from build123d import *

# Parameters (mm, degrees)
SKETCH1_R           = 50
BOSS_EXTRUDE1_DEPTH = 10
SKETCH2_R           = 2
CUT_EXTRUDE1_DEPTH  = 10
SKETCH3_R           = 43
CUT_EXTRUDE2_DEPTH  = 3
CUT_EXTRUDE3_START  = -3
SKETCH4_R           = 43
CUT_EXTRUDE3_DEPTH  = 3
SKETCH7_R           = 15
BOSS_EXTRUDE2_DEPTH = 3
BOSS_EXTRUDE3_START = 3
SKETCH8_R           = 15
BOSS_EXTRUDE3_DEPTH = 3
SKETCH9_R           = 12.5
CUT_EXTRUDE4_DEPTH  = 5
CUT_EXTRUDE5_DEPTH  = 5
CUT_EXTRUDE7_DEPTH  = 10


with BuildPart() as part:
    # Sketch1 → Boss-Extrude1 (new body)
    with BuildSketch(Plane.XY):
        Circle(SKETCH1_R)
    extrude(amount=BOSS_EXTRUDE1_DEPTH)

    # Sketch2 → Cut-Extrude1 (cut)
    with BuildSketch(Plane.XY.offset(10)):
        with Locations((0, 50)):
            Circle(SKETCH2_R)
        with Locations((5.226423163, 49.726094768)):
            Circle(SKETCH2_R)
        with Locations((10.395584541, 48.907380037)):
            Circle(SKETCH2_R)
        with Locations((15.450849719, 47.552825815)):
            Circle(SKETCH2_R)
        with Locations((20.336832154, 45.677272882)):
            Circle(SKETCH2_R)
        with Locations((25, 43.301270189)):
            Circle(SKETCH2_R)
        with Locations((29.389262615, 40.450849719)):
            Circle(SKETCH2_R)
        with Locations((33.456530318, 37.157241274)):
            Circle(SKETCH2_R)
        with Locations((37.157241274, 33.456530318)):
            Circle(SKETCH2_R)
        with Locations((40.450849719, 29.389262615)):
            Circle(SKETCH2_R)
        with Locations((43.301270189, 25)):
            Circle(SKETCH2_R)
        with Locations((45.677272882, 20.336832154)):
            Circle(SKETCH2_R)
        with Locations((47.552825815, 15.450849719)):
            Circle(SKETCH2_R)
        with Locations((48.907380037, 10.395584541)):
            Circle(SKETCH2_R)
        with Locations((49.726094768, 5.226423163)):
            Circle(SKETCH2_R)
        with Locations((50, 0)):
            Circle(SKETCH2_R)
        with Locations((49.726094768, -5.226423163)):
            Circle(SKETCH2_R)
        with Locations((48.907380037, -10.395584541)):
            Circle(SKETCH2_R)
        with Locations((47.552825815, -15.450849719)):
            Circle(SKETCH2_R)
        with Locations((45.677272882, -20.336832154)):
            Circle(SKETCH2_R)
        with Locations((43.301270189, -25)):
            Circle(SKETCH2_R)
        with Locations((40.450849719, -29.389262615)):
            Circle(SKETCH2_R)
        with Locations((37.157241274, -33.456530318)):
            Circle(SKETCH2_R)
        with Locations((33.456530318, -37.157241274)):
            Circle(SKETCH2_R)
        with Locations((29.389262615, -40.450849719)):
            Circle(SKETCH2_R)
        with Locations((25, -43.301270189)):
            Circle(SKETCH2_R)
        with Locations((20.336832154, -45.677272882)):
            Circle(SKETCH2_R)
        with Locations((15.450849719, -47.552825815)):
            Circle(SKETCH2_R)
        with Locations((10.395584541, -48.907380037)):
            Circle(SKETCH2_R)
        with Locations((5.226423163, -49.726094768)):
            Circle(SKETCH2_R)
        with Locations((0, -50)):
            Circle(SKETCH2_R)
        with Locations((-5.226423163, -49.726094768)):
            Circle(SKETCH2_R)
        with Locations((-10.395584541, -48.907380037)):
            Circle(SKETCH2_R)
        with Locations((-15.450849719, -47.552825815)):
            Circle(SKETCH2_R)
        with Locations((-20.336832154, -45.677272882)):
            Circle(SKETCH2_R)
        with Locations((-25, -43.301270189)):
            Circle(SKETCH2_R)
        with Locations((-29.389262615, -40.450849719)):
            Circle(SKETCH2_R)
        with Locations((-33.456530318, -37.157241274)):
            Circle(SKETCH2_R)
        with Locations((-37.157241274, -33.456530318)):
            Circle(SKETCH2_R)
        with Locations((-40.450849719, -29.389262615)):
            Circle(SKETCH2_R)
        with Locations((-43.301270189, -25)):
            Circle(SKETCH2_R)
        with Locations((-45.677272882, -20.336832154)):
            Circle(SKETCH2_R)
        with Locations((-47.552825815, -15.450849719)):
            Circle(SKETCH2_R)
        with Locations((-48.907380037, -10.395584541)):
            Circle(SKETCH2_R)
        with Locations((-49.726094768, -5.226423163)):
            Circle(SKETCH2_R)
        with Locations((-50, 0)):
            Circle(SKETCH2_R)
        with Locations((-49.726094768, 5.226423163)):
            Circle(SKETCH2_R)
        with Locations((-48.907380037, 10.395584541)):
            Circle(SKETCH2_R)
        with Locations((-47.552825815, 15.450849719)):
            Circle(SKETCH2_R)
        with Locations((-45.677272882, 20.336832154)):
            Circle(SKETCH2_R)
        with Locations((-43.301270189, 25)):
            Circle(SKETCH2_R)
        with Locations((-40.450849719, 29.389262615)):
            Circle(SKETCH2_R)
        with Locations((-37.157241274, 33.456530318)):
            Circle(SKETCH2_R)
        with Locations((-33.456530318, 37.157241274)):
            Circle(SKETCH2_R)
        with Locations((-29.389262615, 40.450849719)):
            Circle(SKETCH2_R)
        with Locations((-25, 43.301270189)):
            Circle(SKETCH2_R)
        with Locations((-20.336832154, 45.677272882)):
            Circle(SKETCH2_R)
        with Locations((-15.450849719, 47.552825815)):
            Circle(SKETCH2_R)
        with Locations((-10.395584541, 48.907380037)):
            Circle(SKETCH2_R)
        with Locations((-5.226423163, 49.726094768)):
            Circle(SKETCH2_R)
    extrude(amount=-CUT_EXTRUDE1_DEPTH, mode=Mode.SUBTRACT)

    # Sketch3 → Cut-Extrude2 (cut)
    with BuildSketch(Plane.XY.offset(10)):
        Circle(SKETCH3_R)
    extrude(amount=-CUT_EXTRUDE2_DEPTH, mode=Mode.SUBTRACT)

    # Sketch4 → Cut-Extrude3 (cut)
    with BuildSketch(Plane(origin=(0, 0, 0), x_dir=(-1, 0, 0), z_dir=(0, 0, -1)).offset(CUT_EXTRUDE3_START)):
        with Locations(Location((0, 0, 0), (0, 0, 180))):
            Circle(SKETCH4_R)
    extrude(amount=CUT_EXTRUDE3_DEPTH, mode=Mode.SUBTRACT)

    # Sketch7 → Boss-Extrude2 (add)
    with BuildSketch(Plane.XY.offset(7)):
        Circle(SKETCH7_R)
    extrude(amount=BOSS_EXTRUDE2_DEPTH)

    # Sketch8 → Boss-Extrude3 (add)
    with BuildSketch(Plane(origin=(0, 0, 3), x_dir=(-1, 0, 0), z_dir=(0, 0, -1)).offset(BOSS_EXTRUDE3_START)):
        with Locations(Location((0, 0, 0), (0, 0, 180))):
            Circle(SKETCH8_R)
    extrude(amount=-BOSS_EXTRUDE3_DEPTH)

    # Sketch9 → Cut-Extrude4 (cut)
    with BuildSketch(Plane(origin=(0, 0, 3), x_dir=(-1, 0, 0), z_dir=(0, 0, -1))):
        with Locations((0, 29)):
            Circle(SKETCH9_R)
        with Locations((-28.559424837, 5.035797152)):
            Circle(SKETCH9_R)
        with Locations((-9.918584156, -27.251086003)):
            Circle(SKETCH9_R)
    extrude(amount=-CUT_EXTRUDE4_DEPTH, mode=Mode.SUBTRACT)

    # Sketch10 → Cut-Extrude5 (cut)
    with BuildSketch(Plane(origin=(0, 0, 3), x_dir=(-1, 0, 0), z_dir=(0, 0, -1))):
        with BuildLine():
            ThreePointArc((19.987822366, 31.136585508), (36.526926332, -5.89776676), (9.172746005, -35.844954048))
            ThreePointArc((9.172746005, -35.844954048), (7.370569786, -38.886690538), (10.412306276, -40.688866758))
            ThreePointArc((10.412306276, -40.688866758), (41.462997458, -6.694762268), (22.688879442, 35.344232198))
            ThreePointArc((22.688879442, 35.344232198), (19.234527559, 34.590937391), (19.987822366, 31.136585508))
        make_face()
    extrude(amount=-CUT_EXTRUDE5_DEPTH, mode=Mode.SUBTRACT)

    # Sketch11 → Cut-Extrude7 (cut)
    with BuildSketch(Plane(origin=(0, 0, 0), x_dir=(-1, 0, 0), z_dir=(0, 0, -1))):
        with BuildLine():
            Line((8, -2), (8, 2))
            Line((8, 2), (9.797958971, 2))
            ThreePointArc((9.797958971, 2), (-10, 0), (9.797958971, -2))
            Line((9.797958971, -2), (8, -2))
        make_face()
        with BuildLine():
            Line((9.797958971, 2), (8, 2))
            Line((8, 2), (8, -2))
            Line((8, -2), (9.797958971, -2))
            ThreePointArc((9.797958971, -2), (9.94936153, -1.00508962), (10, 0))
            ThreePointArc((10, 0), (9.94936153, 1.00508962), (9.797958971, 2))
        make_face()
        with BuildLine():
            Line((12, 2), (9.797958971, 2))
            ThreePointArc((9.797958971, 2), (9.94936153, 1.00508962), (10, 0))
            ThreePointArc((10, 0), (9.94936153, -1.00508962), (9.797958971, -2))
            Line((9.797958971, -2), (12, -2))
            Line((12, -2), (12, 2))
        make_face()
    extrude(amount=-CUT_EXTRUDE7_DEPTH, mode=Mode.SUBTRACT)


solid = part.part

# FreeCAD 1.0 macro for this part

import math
import FreeCAD as App
import Part
import Sketcher
from FreeCAD import Vector
Q = App.Units.Quantity

doc = App.newDocument("Part")
params = doc.addObject("Spreadsheet::Sheet", "Params")
for row, (alias, value) in enumerate([
    ("sketch1_diameter", "100 mm"),
    ("pad1_length", "10 mm"),
    ("sketch2_diameter", "4 mm"),
    ("pocket1_length", "10 mm"),
    ("sketch3_diameter", "86 mm"),
    ("pocket2_length", "3 mm"),
    ("sketch4_diameter", "86 mm"),
    ("pocket3_length", "3 mm"),
    ("sketch5_diameter", "30 mm"),
    ("pad2_length", "3 mm"),
    ("sketch6_diameter", "30 mm"),
    ("pad3_length", "3 mm"),
    ("sketch7_diameter", "25 mm"),
    ("pocket4_length", "5 mm"),
    ("sketch8_radius", "37 mm"),
    ("sketch8_radius2", "42 mm"),
    ("pocket5_length", "5 mm"),
    ("sketch9_radius", "10 mm"),
    ("sketch9_height", "4 mm"),
    ("pocket6_length", "10 mm"),
], start=1):
    params.set(f"A{row}", alias)
    params.set(f"B{row}", "=" + value)
    params.setAlias(f"B{row}", alias)

body = doc.addObject("PartDesign::Body", "Body")

# Sketch on XY plane
sketch1 = body.newObject("Sketcher::SketchObject", "Sketch")
sketch1.AttachmentSupport = (doc.getObject("XY_Plane"), [""])
sketch1.MapMode = "FlatFace"
sketch1.addGeometry(Part.Circle(Vector(0, 0, 0), Vector(0, 0, 1), 50), False)
sketch1.addConstraint(Sketcher.Constraint("Coincident", 0, 3, -1, 1))
sketch1.addConstraint(Sketcher.Constraint("Diameter", 0, Q("100 mm")))
sketch1.setExpression("Constraints[1]", "Params.sketch1_diameter")
pad1 = body.newObject("PartDesign::Pad", "Pad")
pad1.Profile = sketch1
pad1.setExpression("Length", "Params.pad1_length")

# Sketch on XY plane
sketch2 = body.newObject("Sketcher::SketchObject", "Sketch001")
sketch2.AttachmentSupport = (doc.getObject("XY_Plane"), [""])
sketch2.MapMode = "FlatFace"
sketch2.AttachmentOffset = App.Placement(Vector(0, 0, 10), App.Rotation())
sketch2.addGeometry(Part.Circle(Vector(0, 50, 0), Vector(0, 0, 1), 2), False)
sketch2.addGeometry(Part.Circle(Vector(5.226423, 49.726095, 0), Vector(0, 0, 1), 2), False)
sketch2.addGeometry(Part.Circle(Vector(10.395585, 48.90738, 0), Vector(0, 0, 1), 2), False)
sketch2.addGeometry(Part.Circle(Vector(15.45085, 47.552826, 0), Vector(0, 0, 1), 2), False)
sketch2.addGeometry(Part.Circle(Vector(20.336832, 45.677273, 0), Vector(0, 0, 1), 2), False)
sketch2.addGeometry(Part.Circle(Vector(25, 43.30127, 0), Vector(0, 0, 1), 2), False)
sketch2.addGeometry(Part.Circle(Vector(29.389263, 40.45085, 0), Vector(0, 0, 1), 2), False)
sketch2.addGeometry(Part.Circle(Vector(33.45653, 37.157241, 0), Vector(0, 0, 1), 2), False)
sketch2.addGeometry(Part.Circle(Vector(37.157241, 33.45653, 0), Vector(0, 0, 1), 2), False)
sketch2.addGeometry(Part.Circle(Vector(40.45085, 29.389263, 0), Vector(0, 0, 1), 2), False)
sketch2.addGeometry(Part.Circle(Vector(43.30127, 25, 0), Vector(0, 0, 1), 2), False)
sketch2.addGeometry(Part.Circle(Vector(45.677273, 20.336832, 0), Vector(0, 0, 1), 2), False)
sketch2.addGeometry(Part.Circle(Vector(47.552826, 15.45085, 0), Vector(0, 0, 1), 2), False)
sketch2.addGeometry(Part.Circle(Vector(48.90738, 10.395585, 0), Vector(0, 0, 1), 2), False)
sketch2.addGeometry(Part.Circle(Vector(49.726095, 5.226423, 0), Vector(0, 0, 1), 2), False)
sketch2.addGeometry(Part.Circle(Vector(50, 0, 0), Vector(0, 0, 1), 2), False)
sketch2.addGeometry(Part.Circle(Vector(49.726095, -5.226423, 0), Vector(0, 0, 1), 2), False)
sketch2.addGeometry(Part.Circle(Vector(48.90738, -10.395585, 0), Vector(0, 0, 1), 2), False)
sketch2.addGeometry(Part.Circle(Vector(47.552826, -15.45085, 0), Vector(0, 0, 1), 2), False)
sketch2.addGeometry(Part.Circle(Vector(45.677273, -20.336832, 0), Vector(0, 0, 1), 2), False)
sketch2.addGeometry(Part.Circle(Vector(43.30127, -25, 0), Vector(0, 0, 1), 2), False)
sketch2.addGeometry(Part.Circle(Vector(40.45085, -29.389263, 0), Vector(0, 0, 1), 2), False)
sketch2.addGeometry(Part.Circle(Vector(37.157241, -33.45653, 0), Vector(0, 0, 1), 2), False)
sketch2.addGeometry(Part.Circle(Vector(33.45653, -37.157241, 0), Vector(0, 0, 1), 2), False)
sketch2.addGeometry(Part.Circle(Vector(29.389263, -40.45085, 0), Vector(0, 0, 1), 2), False)
sketch2.addGeometry(Part.Circle(Vector(25, -43.30127, 0), Vector(0, 0, 1), 2), False)
sketch2.addGeometry(Part.Circle(Vector(20.336832, -45.677273, 0), Vector(0, 0, 1), 2), False)
sketch2.addGeometry(Part.Circle(Vector(15.45085, -47.552826, 0), Vector(0, 0, 1), 2), False)
sketch2.addGeometry(Part.Circle(Vector(10.395585, -48.90738, 0), Vector(0, 0, 1), 2), False)
sketch2.addGeometry(Part.Circle(Vector(5.226423, -49.726095, 0), Vector(0, 0, 1), 2), False)
sketch2.addGeometry(Part.Circle(Vector(0, -50, 0), Vector(0, 0, 1), 2), False)
sketch2.addGeometry(Part.Circle(Vector(-5.226423, -49.726095, 0), Vector(0, 0, 1), 2), False)
sketch2.addGeometry(Part.Circle(Vector(-10.395585, -48.90738, 0), Vector(0, 0, 1), 2), False)
sketch2.addGeometry(Part.Circle(Vector(-15.45085, -47.552826, 0), Vector(0, 0, 1), 2), False)
sketch2.addGeometry(Part.Circle(Vector(-20.336832, -45.677273, 0), Vector(0, 0, 1), 2), False)
sketch2.addGeometry(Part.Circle(Vector(-25, -43.30127, 0), Vector(0, 0, 1), 2), False)
sketch2.addGeometry(Part.Circle(Vector(-29.389263, -40.45085, 0), Vector(0, 0, 1), 2), False)
sketch2.addGeometry(Part.Circle(Vector(-33.45653, -37.157241, 0), Vector(0, 0, 1), 2), False)
sketch2.addGeometry(Part.Circle(Vector(-37.157241, -33.45653, 0), Vector(0, 0, 1), 2), False)
sketch2.addGeometry(Part.Circle(Vector(-40.45085, -29.389263, 0), Vector(0, 0, 1), 2), False)
sketch2.addGeometry(Part.Circle(Vector(-43.30127, -25, 0), Vector(0, 0, 1), 2), False)
sketch2.addGeometry(Part.Circle(Vector(-45.677273, -20.336832, 0), Vector(0, 0, 1), 2), False)
sketch2.addGeometry(Part.Circle(Vector(-47.552826, -15.45085, 0), Vector(0, 0, 1), 2), False)
sketch2.addGeometry(Part.Circle(Vector(-48.90738, -10.395585, 0), Vector(0, 0, 1), 2), False)
sketch2.addGeometry(Part.Circle(Vector(-49.726095, -5.226423, 0), Vector(0, 0, 1), 2), False)
sketch2.addGeometry(Part.Circle(Vector(-50, 0, 0), Vector(0, 0, 1), 2), False)
sketch2.addGeometry(Part.Circle(Vector(-49.726095, 5.226423, 0), Vector(0, 0, 1), 2), False)
sketch2.addGeometry(Part.Circle(Vector(-48.90738, 10.395585, 0), Vector(0, 0, 1), 2), False)
sketch2.addGeometry(Part.Circle(Vector(-47.552826, 15.45085, 0), Vector(0, 0, 1), 2), False)
sketch2.addGeometry(Part.Circle(Vector(-45.677273, 20.336832, 0), Vector(0, 0, 1), 2), False)
sketch2.addGeometry(Part.Circle(Vector(-43.30127, 25, 0), Vector(0, 0, 1), 2), False)
sketch2.addGeometry(Part.Circle(Vector(-40.45085, 29.389263, 0), Vector(0, 0, 1), 2), False)
sketch2.addGeometry(Part.Circle(Vector(-37.157241, 33.45653, 0), Vector(0, 0, 1), 2), False)
sketch2.addGeometry(Part.Circle(Vector(-33.45653, 37.157241, 0), Vector(0, 0, 1), 2), False)
sketch2.addGeometry(Part.Circle(Vector(-29.389263, 40.45085, 0), Vector(0, 0, 1), 2), False)
sketch2.addGeometry(Part.Circle(Vector(-25, 43.30127, 0), Vector(0, 0, 1), 2), False)
sketch2.addGeometry(Part.Circle(Vector(-20.336832, 45.677273, 0), Vector(0, 0, 1), 2), False)
sketch2.addGeometry(Part.Circle(Vector(-15.45085, 47.552826, 0), Vector(0, 0, 1), 2), False)
sketch2.addGeometry(Part.Circle(Vector(-10.395585, 48.90738, 0), Vector(0, 0, 1), 2), False)
sketch2.addGeometry(Part.Circle(Vector(-5.226423, 49.726095, 0), Vector(0, 0, 1), 2), False)
sketch2.addConstraint(Sketcher.Constraint("Equal", 0, 1))
sketch2.addConstraint(Sketcher.Constraint("Equal", 1, 2))
sketch2.addConstraint(Sketcher.Constraint("Equal", 2, 3))
sketch2.addConstraint(Sketcher.Constraint("Equal", 3, 4))
sketch2.addConstraint(Sketcher.Constraint("Equal", 4, 5))
sketch2.addConstraint(Sketcher.Constraint("Equal", 5, 6))
sketch2.addConstraint(Sketcher.Constraint("Equal", 6, 7))
sketch2.addConstraint(Sketcher.Constraint("Equal", 7, 8))
sketch2.addConstraint(Sketcher.Constraint("Equal", 8, 9))
sketch2.addConstraint(Sketcher.Constraint("Equal", 9, 10))
sketch2.addConstraint(Sketcher.Constraint("Equal", 10, 11))
sketch2.addConstraint(Sketcher.Constraint("Equal", 11, 12))
sketch2.addConstraint(Sketcher.Constraint("Equal", 12, 13))
sketch2.addConstraint(Sketcher.Constraint("Equal", 13, 14))
sketch2.addConstraint(Sketcher.Constraint("Equal", 14, 15))
sketch2.addConstraint(Sketcher.Constraint("Equal", 15, 16))
sketch2.addConstraint(Sketcher.Constraint("Equal", 16, 17))
sketch2.addConstraint(Sketcher.Constraint("Equal", 17, 18))
sketch2.addConstraint(Sketcher.Constraint("Equal", 18, 19))
sketch2.addConstraint(Sketcher.Constraint("Equal", 19, 20))
sketch2.addConstraint(Sketcher.Constraint("Equal", 20, 21))
sketch2.addConstraint(Sketcher.Constraint("Equal", 21, 22))
sketch2.addConstraint(Sketcher.Constraint("Equal", 22, 23))
sketch2.addConstraint(Sketcher.Constraint("Equal", 23, 24))
sketch2.addConstraint(Sketcher.Constraint("Equal", 24, 25))
sketch2.addConstraint(Sketcher.Constraint("Equal", 25, 26))
sketch2.addConstraint(Sketcher.Constraint("Equal", 26, 27))
sketch2.addConstraint(Sketcher.Constraint("Equal", 27, 28))
sketch2.addConstraint(Sketcher.Constraint("Equal", 28, 29))
sketch2.addConstraint(Sketcher.Constraint("Equal", 29, 30))
sketch2.addConstraint(Sketcher.Constraint("Equal", 30, 31))
sketch2.addConstraint(Sketcher.Constraint("Equal", 31, 32))
sketch2.addConstraint(Sketcher.Constraint("Equal", 32, 33))
sketch2.addConstraint(Sketcher.Constraint("Equal", 33, 34))
sketch2.addConstraint(Sketcher.Constraint("Equal", 34, 35))
sketch2.addConstraint(Sketcher.Constraint("Equal", 35, 36))
sketch2.addConstraint(Sketcher.Constraint("Equal", 36, 37))
sketch2.addConstraint(Sketcher.Constraint("Equal", 37, 38))
sketch2.addConstraint(Sketcher.Constraint("Equal", 38, 39))
sketch2.addConstraint(Sketcher.Constraint("Equal", 39, 40))
sketch2.addConstraint(Sketcher.Constraint("Equal", 40, 41))
sketch2.addConstraint(Sketcher.Constraint("Equal", 41, 42))
sketch2.addConstraint(Sketcher.Constraint("Equal", 42, 43))
sketch2.addConstraint(Sketcher.Constraint("Equal", 43, 44))
sketch2.addConstraint(Sketcher.Constraint("Equal", 44, 45))
sketch2.addConstraint(Sketcher.Constraint("Equal", 45, 46))
sketch2.addConstraint(Sketcher.Constraint("Equal", 46, 47))
sketch2.addConstraint(Sketcher.Constraint("Equal", 47, 48))
sketch2.addConstraint(Sketcher.Constraint("Equal", 48, 49))
sketch2.addConstraint(Sketcher.Constraint("Equal", 49, 50))
sketch2.addConstraint(Sketcher.Constraint("Equal", 50, 51))
sketch2.addConstraint(Sketcher.Constraint("Equal", 51, 52))
sketch2.addConstraint(Sketcher.Constraint("Equal", 52, 53))
sketch2.addConstraint(Sketcher.Constraint("Equal", 53, 54))
sketch2.addConstraint(Sketcher.Constraint("Equal", 54, 55))
sketch2.addConstraint(Sketcher.Constraint("Equal", 55, 56))
sketch2.addConstraint(Sketcher.Constraint("Equal", 56, 57))
sketch2.addConstraint(Sketcher.Constraint("Equal", 57, 58))
sketch2.addConstraint(Sketcher.Constraint("Equal", 58, 59))
sketch2.addConstraint(Sketcher.Constraint("Symmetric", 0, 3, 30, 3, -1, 1))
sketch2.addConstraint(Sketcher.Constraint("Symmetric", 1, 3, 31, 3, -1, 1))
sketch2.addConstraint(Sketcher.Constraint("Symmetric", 2, 3, 32, 3, -1, 1))
sketch2.addConstraint(Sketcher.Constraint("Symmetric", 3, 3, 33, 3, -1, 1))
sketch2.addConstraint(Sketcher.Constraint("Symmetric", 4, 3, 34, 3, -1, 1))
sketch2.addConstraint(Sketcher.Constraint("Symmetric", 5, 3, 35, 3, -1, 1))
sketch2.addConstraint(Sketcher.Constraint("Symmetric", 6, 3, 36, 3, -1, 1))
sketch2.addConstraint(Sketcher.Constraint("Symmetric", 7, 3, 37, 3, -1, 1))
sketch2.addConstraint(Sketcher.Constraint("Symmetric", 8, 3, 38, 3, -1, 1))
sketch2.addConstraint(Sketcher.Constraint("Symmetric", 9, 3, 39, 3, -1, 1))
sketch2.addConstraint(Sketcher.Constraint("Symmetric", 10, 3, 40, 3, -1, 1))
sketch2.addConstraint(Sketcher.Constraint("Symmetric", 11, 3, 41, 3, -1, 1))
sketch2.addConstraint(Sketcher.Constraint("Symmetric", 12, 3, 42, 3, -1, 1))
sketch2.addConstraint(Sketcher.Constraint("Symmetric", 13, 3, 43, 3, -1, 1))
sketch2.addConstraint(Sketcher.Constraint("Symmetric", 14, 3, 44, 3, -1, 1))
sketch2.addConstraint(Sketcher.Constraint("Symmetric", 15, 3, 45, 3, -1, 1))
sketch2.addConstraint(Sketcher.Constraint("Symmetric", 16, 3, 46, 3, -1, 1))
sketch2.addConstraint(Sketcher.Constraint("Symmetric", 17, 3, 47, 3, -1, 1))
sketch2.addConstraint(Sketcher.Constraint("Symmetric", 18, 3, 48, 3, -1, 1))
sketch2.addConstraint(Sketcher.Constraint("Symmetric", 19, 3, 49, 3, -1, 1))
sketch2.addConstraint(Sketcher.Constraint("Symmetric", 20, 3, 50, 3, -1, 1))
sketch2.addConstraint(Sketcher.Constraint("Symmetric", 21, 3, 51, 3, -1, 1))
sketch2.addConstraint(Sketcher.Constraint("Symmetric", 22, 3, 52, 3, -1, 1))
sketch2.addConstraint(Sketcher.Constraint("Symmetric", 23, 3, 53, 3, -1, 1))
sketch2.addConstraint(Sketcher.Constraint("Symmetric", 24, 3, 54, 3, -1, 1))
sketch2.addConstraint(Sketcher.Constraint("Symmetric", 25, 3, 55, 3, -1, 1))
sketch2.addConstraint(Sketcher.Constraint("Symmetric", 26, 3, 56, 3, -1, 1))
sketch2.addConstraint(Sketcher.Constraint("Symmetric", 27, 3, 57, 3, -1, 1))
sketch2.addConstraint(Sketcher.Constraint("Symmetric", 28, 3, 58, 3, -1, 1))
sketch2.addConstraint(Sketcher.Constraint("Symmetric", 29, 3, 59, 3, -1, 1))
sketch2.addConstraint(Sketcher.Constraint("Symmetric", 29, 3, 31, 3, -2))
sketch2.addConstraint(Sketcher.Constraint("Symmetric", 28, 3, 32, 3, -2))
sketch2.addConstraint(Sketcher.Constraint("Symmetric", 27, 3, 33, 3, -2))
sketch2.addConstraint(Sketcher.Constraint("Symmetric", 26, 3, 34, 3, -2))
sketch2.addConstraint(Sketcher.Constraint("Symmetric", 25, 3, 35, 3, -2))
sketch2.addConstraint(Sketcher.Constraint("Symmetric", 24, 3, 36, 3, -2))
sketch2.addConstraint(Sketcher.Constraint("Symmetric", 23, 3, 37, 3, -2))
sketch2.addConstraint(Sketcher.Constraint("Symmetric", 22, 3, 38, 3, -2))
sketch2.addConstraint(Sketcher.Constraint("Symmetric", 21, 3, 39, 3, -2))
sketch2.addConstraint(Sketcher.Constraint("Symmetric", 20, 3, 40, 3, -2))
sketch2.addConstraint(Sketcher.Constraint("Symmetric", 19, 3, 41, 3, -2))
sketch2.addConstraint(Sketcher.Constraint("Symmetric", 18, 3, 42, 3, -2))
sketch2.addConstraint(Sketcher.Constraint("Symmetric", 17, 3, 43, 3, -2))
sketch2.addConstraint(Sketcher.Constraint("Symmetric", 16, 3, 44, 3, -2))
sketch2.addConstraint(Sketcher.Constraint("PointOnObject", 0, 3, -2))
sketch2.addConstraint(Sketcher.Constraint("PointOnObject", 15, 3, -1))
sketch2.addConstraint(Sketcher.Constraint("Diameter", 0, Q("4 mm")))
sketch2.addConstraint(Sketcher.Constraint("DistanceY", -1, 1, 0, 3, Q("50 mm")))
sketch2.addConstraint(Sketcher.Constraint("DistanceX", -1, 1, 5, 3, Q("25 mm")))
sketch2.addConstraint(Sketcher.Constraint("DistanceY", -1, 1, 10, 3, Q("25 mm")))
sketch2.addConstraint(Sketcher.Constraint("DistanceX", -1, 1, 15, 3, Q("50 mm")))
sketch2.addConstraint(Sketcher.Constraint("DistanceX", 4, 3, 7, 3, Q("13.119698 mm")))
sketch2.addConstraint(Sketcher.Constraint("DistanceY", 11, 3, 8, 3, Q("13.119698 mm")))
sketch2.addConstraint(Sketcher.Constraint("DistanceY", -1, 1, 2, 3, Q("48.90738 mm")))
sketch2.addConstraint(Sketcher.Constraint("DistanceX", -1, 1, 3, 3, Q("15.45085 mm")))
sketch2.addConstraint(Sketcher.Constraint("DistanceY", -1, 1, 5, 3, Q("43.30127 mm")))
sketch2.addConstraint(Sketcher.Constraint("DistanceY", -1, 1, 6, 3, Q("40.45085 mm")))
sketch2.addConstraint(Sketcher.Constraint("DistanceX", -1, 1, 7, 3, Q("33.45653 mm")))
sketch2.addConstraint(Sketcher.Constraint("DistanceY", -1, 1, 7, 3, Q("37.157241 mm")))
sketch2.addConstraint(Sketcher.Constraint("DistanceX", -1, 1, 8, 3, Q("37.157241 mm")))
sketch2.addConstraint(Sketcher.Constraint("DistanceY", -1, 1, 8, 3, Q("33.45653 mm")))
sketch2.addConstraint(Sketcher.Constraint("DistanceX", -1, 1, 9, 3, Q("40.45085 mm")))
sketch2.addConstraint(Sketcher.Constraint("DistanceX", -1, 1, 10, 3, Q("43.30127 mm")))
sketch2.addConstraint(Sketcher.Constraint("DistanceY", -1, 1, 12, 3, Q("15.45085 mm")))
sketch2.addConstraint(Sketcher.Constraint("DistanceX", -1, 1, 13, 3, Q("48.90738 mm")))
sketch2.addConstraint(Sketcher.Constraint("DistanceX", 1, 3, 2, 3, Q("5.169161 mm")))
sketch2.addConstraint(Sketcher.Constraint("DistanceY", 3, 3, 1, 3, Q("2.173269 mm")))
sketch2.addConstraint(Sketcher.Constraint("DistanceX", 1, 3, 4, 3, Q("15.110409 mm")))
sketch2.addConstraint(Sketcher.Constraint("DistanceY", 4, 3, 1, 3, Q("4.048822 mm")))
sketch2.addConstraint(Sketcher.Constraint("DistanceX", 4, 3, 6, 3, Q("9.05243 mm")))
sketch2.addConstraint(Sketcher.Constraint("DistanceY", 7, 3, 4, 3, Q("8.520032 mm")))
sketch2.addConstraint(Sketcher.Constraint("DistanceY", 9, 3, 7, 3, Q("7.767979 mm")))
sketch2.addConstraint(Sketcher.Constraint("DistanceX", 8, 3, 11, 3, Q("8.520032 mm")))
sketch2.addConstraint(Sketcher.Constraint("DistanceY", 13, 3, 9, 3, Q("18.993678 mm")))
sketch2.addConstraint(Sketcher.Constraint("DistanceY", 14, 3, 13, 3, Q("5.169161 mm")))
sketch2.addConstraint(Sketcher.Constraint("DistanceX", 12, 3, 14, 3, Q("2.173269 mm")))
sketch2.addConstraint(Sketcher.Constraint("DistanceX", 11, 3, 14, 3, Q("4.048822 mm")))
sketch2.setExpression("Constraints[105]", "Params.sketch2_diameter")
pocket1 = body.newObject("PartDesign::Pocket", "Pocket")
pocket1.Profile = sketch2
pocket1.setExpression("Length", "Params.pocket1_length")

# Sketch on XY plane
sketch3 = body.newObject("Sketcher::SketchObject", "Sketch002")
sketch3.AttachmentSupport = (doc.getObject("XY_Plane"), [""])
sketch3.MapMode = "FlatFace"
sketch3.AttachmentOffset = App.Placement(Vector(0, 0, 10), App.Rotation())
sketch3.addGeometry(Part.Circle(Vector(0, 0, 0), Vector(0, 0, 1), 43), False)
sketch3.addConstraint(Sketcher.Constraint("Coincident", 0, 3, -1, 1))
sketch3.addConstraint(Sketcher.Constraint("Diameter", 0, Q("86 mm")))
sketch3.setExpression("Constraints[1]", "Params.sketch3_diameter")
pocket2 = body.newObject("PartDesign::Pocket", "Pocket001")
pocket2.Profile = sketch3
pocket2.setExpression("Length", "Params.pocket2_length")

# Sketch on XY plane
sketch4 = body.newObject("Sketcher::SketchObject", "Sketch003")
sketch4.AttachmentSupport = (doc.getObject("XY_Plane"), [""])
sketch4.MapMode = "FlatFace"
sketch4.AttachmentOffset = App.Placement(Vector(0, 0, 3), App.Rotation())
sketch4.addGeometry(Part.Circle(Vector(0, 0, 0), Vector(0, 0, 1), 43), False)
sketch4.addConstraint(Sketcher.Constraint("Coincident", 0, 3, -1, 1))
sketch4.addConstraint(Sketcher.Constraint("Diameter", 0, Q("86 mm")))
sketch4.setExpression("Constraints[1]", "Params.sketch4_diameter")
pocket3 = body.newObject("PartDesign::Pocket", "Pocket002")
pocket3.Profile = sketch4
pocket3.setExpression("Length", "Params.pocket3_length")

# Sketch on XY plane
sketch5 = body.newObject("Sketcher::SketchObject", "Sketch004")
sketch5.AttachmentSupport = (doc.getObject("XY_Plane"), [""])
sketch5.MapMode = "FlatFace"
sketch5.AttachmentOffset = App.Placement(Vector(0, 0, 7), App.Rotation())
sketch5.addGeometry(Part.Circle(Vector(0, 0, 0), Vector(0, 0, 1), 15), False)
sketch5.addConstraint(Sketcher.Constraint("Coincident", 0, 3, -1, 1))
sketch5.addConstraint(Sketcher.Constraint("Diameter", 0, Q("30 mm")))
sketch5.setExpression("Constraints[1]", "Params.sketch5_diameter")
pad2 = body.newObject("PartDesign::Pad", "Pad001")
pad2.Profile = sketch5
pad2.setExpression("Length", "Params.pad2_length")

# Sketch on XY plane
sketch6 = body.newObject("Sketcher::SketchObject", "Sketch005")
sketch6.AttachmentSupport = (doc.getObject("XY_Plane"), [""])
sketch6.MapMode = "FlatFace"
sketch6.addGeometry(Part.Circle(Vector(0, 0, 0), Vector(0, 0, 1), 15), False)
sketch6.addConstraint(Sketcher.Constraint("Coincident", 0, 3, -1, 1))
sketch6.addConstraint(Sketcher.Constraint("Diameter", 0, Q("30 mm")))
sketch6.setExpression("Constraints[1]", "Params.sketch6_diameter")
pad3 = body.newObject("PartDesign::Pad", "Pad002")
pad3.Profile = sketch6
pad3.setExpression("Length", "Params.pad3_length")

# Sketch on XY plane
sketch7 = body.newObject("Sketcher::SketchObject", "Sketch006")
sketch7.AttachmentSupport = (doc.getObject("XY_Plane"), [""])
sketch7.MapMode = "FlatFace"
sketch7.AttachmentOffset = App.Placement(Vector(0, 0, 3), App.Rotation())
sketch7.addGeometry(Part.Circle(Vector(0, 29, 0), Vector(0, 0, 1), 12.5), False)
sketch7.addGeometry(Part.Circle(Vector(28.559425, 5.035797, 0), Vector(0, 0, 1), 12.5), False)
sketch7.addGeometry(Part.Circle(Vector(9.918584, -27.251086, 0), Vector(0, 0, 1), 12.5), False)
sketch7.addConstraint(Sketcher.Constraint("Equal", 0, 1))
sketch7.addConstraint(Sketcher.Constraint("Equal", 1, 2))
sketch7.addConstraint(Sketcher.Constraint("PointOnObject", 0, 3, -2))
sketch7.addConstraint(Sketcher.Constraint("Diameter", 0, Q("25 mm")))
sketch7.addConstraint(Sketcher.Constraint("DistanceY", -1, 1, 0, 3, Q("29 mm")))
sketch7.addConstraint(Sketcher.Constraint("DistanceX", 2, 3, 1, 3, Q("18.640841 mm")))
sketch7.addConstraint(Sketcher.Constraint("DistanceX", -1, 1, 1, 3, Q("28.559425 mm")))
sketch7.addConstraint(Sketcher.Constraint("DistanceY", -1, 1, 1, 3, Q("5.035797 mm")))
sketch7.addConstraint(Sketcher.Constraint("DistanceY", 2, 3, -1, 1, Q("27.251086 mm")))
sketch7.setExpression("Constraints[3]", "Params.sketch7_diameter")
pocket4 = body.newObject("PartDesign::Pocket", "Pocket003")
pocket4.Profile = sketch7
pocket4.setExpression("Length", "Params.pocket4_length")
pocket4.Reversed = True

# Sketch on XY plane
sketch8 = body.newObject("Sketcher::SketchObject", "Sketch007")
sketch8.AttachmentSupport = (doc.getObject("XY_Plane"), [""])
sketch8.MapMode = "FlatFace"
sketch8.AttachmentOffset = App.Placement(Vector(0, 0, 3), App.Rotation())
sketch8.addGeometry(Part.ArcOfCircle(Part.Circle(Vector(0, 0, 0), Vector(0, 0, 1), 37), math.radians(122.698032), math.radians(255.646007)), False)
sketch8.addGeometry(Part.ArcOfCircle(Part.Circle(Vector(-9.792526, -38.26691, 0), Vector(0, 0, 1), 2.5), math.radians(-104.353993), math.radians(75.646007)), False)
sketch8.addGeometry(Part.ArcOfCircle(Part.Circle(Vector(0, 0, 0), Vector(0, 0, 1), 42), math.radians(122.698032), math.radians(255.646007)), False)
sketch8.addGeometry(Part.ArcOfCircle(Part.Circle(Vector(-21.338351, 33.240409, 0), Vector(0, 0, 1), 2.5), math.radians(-57.301968), math.radians(122.698032)), False)
sketch8.addConstraint(Sketcher.Constraint("Tangent", 0, 2, 1, 2))
sketch8.addConstraint(Sketcher.Constraint("Tangent", 1, 1, 2, 2))
sketch8.addConstraint(Sketcher.Constraint("Tangent", 2, 1, 3, 2))
sketch8.addConstraint(Sketcher.Constraint("Tangent", 3, 1, 0, 1))
sketch8.addConstraint(Sketcher.Constraint("Coincident", 0, 3, -1, 1))
sketch8.addConstraint(Sketcher.Constraint("Coincident", 2, 3, -1, 1))
sketch8.addConstraint(Sketcher.Constraint("Radius", 0, Q("37 mm")))
sketch8.addConstraint(Sketcher.Constraint("Radius", 2, Q("42 mm")))
sketch8.addConstraint(Sketcher.Constraint("DistanceY", 1, 3, -1, 1, Q("38.26691 mm")))
sketch8.addConstraint(Sketcher.Constraint("DistanceX", 3, 3, -1, 1, Q("21.338351 mm")))
sketch8.setExpression("Constraints[6]", "Params.sketch8_radius")
sketch8.setExpression("Constraints[7]", "Params.sketch8_radius2")
pocket5 = body.newObject("PartDesign::Pocket", "Pocket004")
pocket5.Profile = sketch8
pocket5.setExpression("Length", "Params.pocket5_length")
pocket5.Reversed = True

# Sketch on XY plane
sketch9 = body.newObject("Sketcher::SketchObject", "Sketch008")
sketch9.AttachmentSupport = (doc.getObject("XY_Plane"), [""])
sketch9.MapMode = "FlatFace"
sketch9.addGeometry(Part.ArcOfCircle(Part.Circle(Vector(0, 0, 0), Vector(0, 0, 1), 10), math.radians(-168.463041), math.radians(168.463041)), False)
sketch9.addGeometry(Part.LineSegment(Vector(-9.797959, -2, 0), Vector(-12, -2, 0)), False)
sketch9.addGeometry(Part.LineSegment(Vector(-12, -2, 0), Vector(-12, 2, 0)), False)
sketch9.addGeometry(Part.LineSegment(Vector(-12, 2, 0), Vector(-9.797959, 2, 0)), False)
sketch9.addConstraint(Sketcher.Constraint("Coincident", 0, 1, 1, 1))
sketch9.addConstraint(Sketcher.Constraint("Coincident", 1, 2, 2, 1))
sketch9.addConstraint(Sketcher.Constraint("Coincident", 2, 2, 3, 1))
sketch9.addConstraint(Sketcher.Constraint("Coincident", 3, 2, 0, 2))
sketch9.addConstraint(Sketcher.Constraint("Horizontal", 1))
sketch9.addConstraint(Sketcher.Constraint("Vertical", 2))
sketch9.addConstraint(Sketcher.Constraint("Horizontal", 3))
sketch9.addConstraint(Sketcher.Constraint("Coincident", 0, 3, -1, 1))
sketch9.addConstraint(Sketcher.Constraint("Vertical", 0, 1, 3, 2))
sketch9.addConstraint(Sketcher.Constraint("Radius", 0, Q("10 mm")))
sketch9.addConstraint(Sketcher.Constraint("DistanceY", 2, 1, 2, 2, Q("4 mm")))
sketch9.addConstraint(Sketcher.Constraint("DistanceX", 1, 2, -1, 1, Q("12 mm")))
sketch9.setExpression("Constraints[9]", "Params.sketch9_radius")
sketch9.setExpression("Constraints[10]", "Params.sketch9_height")
pocket6 = body.newObject("PartDesign::Pocket", "Pocket005")
pocket6.Profile = sketch9
pocket6.setExpression("Length", "Params.pocket6_length")
pocket6.Reversed = True

doc.recompute()
